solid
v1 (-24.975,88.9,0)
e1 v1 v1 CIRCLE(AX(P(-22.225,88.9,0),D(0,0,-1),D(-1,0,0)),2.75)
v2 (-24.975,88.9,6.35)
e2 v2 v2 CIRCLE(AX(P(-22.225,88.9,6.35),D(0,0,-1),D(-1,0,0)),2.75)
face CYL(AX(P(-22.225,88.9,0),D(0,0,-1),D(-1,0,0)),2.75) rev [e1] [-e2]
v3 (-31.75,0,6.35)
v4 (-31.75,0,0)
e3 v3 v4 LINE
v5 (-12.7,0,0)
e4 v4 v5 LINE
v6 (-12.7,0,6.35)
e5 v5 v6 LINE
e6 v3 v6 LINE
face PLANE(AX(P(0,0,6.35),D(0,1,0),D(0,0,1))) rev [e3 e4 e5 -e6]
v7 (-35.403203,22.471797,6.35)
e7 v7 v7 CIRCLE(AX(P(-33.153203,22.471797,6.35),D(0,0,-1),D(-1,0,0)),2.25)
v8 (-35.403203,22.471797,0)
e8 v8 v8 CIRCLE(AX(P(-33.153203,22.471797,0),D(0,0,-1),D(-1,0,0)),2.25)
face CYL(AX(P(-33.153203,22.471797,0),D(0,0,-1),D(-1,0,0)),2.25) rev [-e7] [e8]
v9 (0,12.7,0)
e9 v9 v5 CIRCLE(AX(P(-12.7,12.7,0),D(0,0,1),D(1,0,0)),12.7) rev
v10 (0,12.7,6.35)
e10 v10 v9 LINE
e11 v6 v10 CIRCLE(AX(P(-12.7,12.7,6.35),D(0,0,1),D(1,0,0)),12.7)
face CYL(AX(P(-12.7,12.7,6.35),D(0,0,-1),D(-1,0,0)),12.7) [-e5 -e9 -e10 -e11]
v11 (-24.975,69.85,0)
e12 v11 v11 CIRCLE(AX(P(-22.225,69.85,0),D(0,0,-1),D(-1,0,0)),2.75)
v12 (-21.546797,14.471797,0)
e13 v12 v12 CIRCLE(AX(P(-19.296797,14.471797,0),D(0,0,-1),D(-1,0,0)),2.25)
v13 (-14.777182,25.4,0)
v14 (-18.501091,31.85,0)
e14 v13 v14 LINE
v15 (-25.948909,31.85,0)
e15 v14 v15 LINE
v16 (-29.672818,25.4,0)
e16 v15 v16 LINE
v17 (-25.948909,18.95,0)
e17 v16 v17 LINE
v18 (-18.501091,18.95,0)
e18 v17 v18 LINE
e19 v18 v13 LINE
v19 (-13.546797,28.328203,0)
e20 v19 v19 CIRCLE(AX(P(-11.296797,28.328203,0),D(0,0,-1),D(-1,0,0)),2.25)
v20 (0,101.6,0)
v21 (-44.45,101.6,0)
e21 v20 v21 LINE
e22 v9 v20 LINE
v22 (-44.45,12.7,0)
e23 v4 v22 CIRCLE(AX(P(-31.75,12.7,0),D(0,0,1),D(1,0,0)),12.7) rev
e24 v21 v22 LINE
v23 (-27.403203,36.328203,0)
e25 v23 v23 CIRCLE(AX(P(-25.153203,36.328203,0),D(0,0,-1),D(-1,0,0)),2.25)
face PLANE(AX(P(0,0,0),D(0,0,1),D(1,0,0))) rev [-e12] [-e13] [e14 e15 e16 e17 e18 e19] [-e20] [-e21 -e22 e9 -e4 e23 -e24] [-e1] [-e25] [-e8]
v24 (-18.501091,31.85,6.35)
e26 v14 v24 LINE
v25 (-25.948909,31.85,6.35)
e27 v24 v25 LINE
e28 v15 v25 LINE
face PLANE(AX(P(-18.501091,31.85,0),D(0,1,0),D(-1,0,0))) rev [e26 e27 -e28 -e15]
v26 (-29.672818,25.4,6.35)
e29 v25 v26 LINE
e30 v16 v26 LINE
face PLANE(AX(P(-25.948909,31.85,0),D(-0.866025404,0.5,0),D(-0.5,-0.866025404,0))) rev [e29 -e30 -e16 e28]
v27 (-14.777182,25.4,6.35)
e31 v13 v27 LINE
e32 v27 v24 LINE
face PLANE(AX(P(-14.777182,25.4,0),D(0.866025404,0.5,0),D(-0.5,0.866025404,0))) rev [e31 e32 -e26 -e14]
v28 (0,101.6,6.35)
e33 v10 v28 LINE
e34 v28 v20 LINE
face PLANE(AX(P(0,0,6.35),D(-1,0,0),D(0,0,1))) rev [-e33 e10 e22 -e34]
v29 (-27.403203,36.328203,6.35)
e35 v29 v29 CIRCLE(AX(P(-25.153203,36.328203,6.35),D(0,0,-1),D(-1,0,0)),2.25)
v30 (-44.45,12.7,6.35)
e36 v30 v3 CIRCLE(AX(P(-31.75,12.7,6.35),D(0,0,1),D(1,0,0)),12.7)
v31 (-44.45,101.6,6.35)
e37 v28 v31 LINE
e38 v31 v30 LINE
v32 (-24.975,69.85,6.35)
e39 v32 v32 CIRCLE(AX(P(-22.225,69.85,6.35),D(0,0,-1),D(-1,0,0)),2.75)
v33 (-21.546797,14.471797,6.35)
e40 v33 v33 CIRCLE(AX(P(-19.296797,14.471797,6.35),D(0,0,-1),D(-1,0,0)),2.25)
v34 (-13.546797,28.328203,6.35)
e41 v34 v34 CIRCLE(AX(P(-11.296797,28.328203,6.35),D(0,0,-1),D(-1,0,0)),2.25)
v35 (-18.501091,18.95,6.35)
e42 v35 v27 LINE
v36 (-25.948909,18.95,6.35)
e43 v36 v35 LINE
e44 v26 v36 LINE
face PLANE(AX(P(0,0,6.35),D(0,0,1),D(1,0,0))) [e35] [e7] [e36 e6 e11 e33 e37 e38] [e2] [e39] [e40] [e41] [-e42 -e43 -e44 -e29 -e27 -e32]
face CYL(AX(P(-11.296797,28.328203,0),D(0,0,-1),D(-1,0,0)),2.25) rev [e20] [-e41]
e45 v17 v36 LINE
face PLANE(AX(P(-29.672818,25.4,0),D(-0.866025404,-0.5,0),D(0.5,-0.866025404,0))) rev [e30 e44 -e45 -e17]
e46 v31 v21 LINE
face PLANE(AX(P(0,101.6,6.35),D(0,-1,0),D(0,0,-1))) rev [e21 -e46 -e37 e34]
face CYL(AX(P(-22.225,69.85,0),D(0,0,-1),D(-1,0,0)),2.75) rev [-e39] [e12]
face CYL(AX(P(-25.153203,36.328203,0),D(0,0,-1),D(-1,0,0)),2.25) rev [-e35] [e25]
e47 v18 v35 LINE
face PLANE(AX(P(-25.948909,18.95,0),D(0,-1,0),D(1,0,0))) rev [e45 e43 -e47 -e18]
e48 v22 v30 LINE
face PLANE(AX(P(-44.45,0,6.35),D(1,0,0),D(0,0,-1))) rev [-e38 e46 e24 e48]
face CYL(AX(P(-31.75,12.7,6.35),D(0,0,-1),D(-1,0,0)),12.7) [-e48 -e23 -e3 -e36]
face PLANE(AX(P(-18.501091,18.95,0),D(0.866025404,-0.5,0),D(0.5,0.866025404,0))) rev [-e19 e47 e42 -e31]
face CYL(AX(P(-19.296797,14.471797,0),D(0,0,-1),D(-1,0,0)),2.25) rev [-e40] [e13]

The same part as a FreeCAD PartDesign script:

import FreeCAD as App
import Part
import Sketcher

V = App.Vector
Q = App.Units.Quantity


def edges_at(feature, points):
    """Names of the edges that pass closest to the given points."""
    edges = feature.Shape.Edges
    near = lambda p: min(range(len(edges)), key=lambda i: edges[i].distToShape(Part.Vertex(*p))[0])
    return sorted({f"Edge{near(p) + 1}" for p in points})

doc = App.newDocument("Part")
params = doc.addObject("Spreadsheet::Sheet", "Params")
for row, (alias, value) in enumerate([
    ("sketch1_height", "4 in"),
    ("sketch1_width", "1.75 in"),
    ("pad1_length", "0.25 in"),
    ("fillet_radius", "0.5 in"),
    ("hole_diameter", "5.5 mm"),
    ("hole2_diameter", "4.5 mm"),
], start=1):
    params.set(f"A{row}", alias)
    params.set(f"B{row}", "=" + value)
    params.setAlias(f"B{row}", alias)

body = doc.addObject("PartDesign::Body", "Body")

# Sketch on XY plane
sketch1 = body.newObject("Sketcher::SketchObject", "Sketch")
sketch1.AttachmentSupport = (doc.getObject("XY_Plane"), [""])
sketch1.MapMode = "FlatFace"
sketch1.addGeometry([
    Part.LineSegment(V(-44.45, 101.6, 0), V(-44.45, 0, 0)),
    Part.LineSegment(V(-44.45, 0, 0), V(0, 0, 0)),
    Part.LineSegment(V(0, 0, 0), V(0, 101.6, 0)),
    Part.LineSegment(V(0, 101.6, 0), V(-44.45, 101.6, 0)),
], False)
sketch1.addConstraint([
    Sketcher.Constraint("Coincident", 0, 2, 1, 1),
    Sketcher.Constraint("Coincident", 1, 2, 2, 1),
    Sketcher.Constraint("Coincident", 2, 2, 3, 1),
    Sketcher.Constraint("Coincident", 3, 2, 0, 1),
    Sketcher.Constraint("Vertical", 0),
    Sketcher.Constraint("Horizontal", 1),
    Sketcher.Constraint("Vertical", 2),
    Sketcher.Constraint("Horizontal", 3),
    Sketcher.Constraint("Coincident", 1, 2, -1, 1),
    Sketcher.Constraint("DistanceY", 0, 2, 0, 1, Q("4 in")),
    Sketcher.Constraint("DistanceX", 1, 1, 1, 2, Q("1.75 in")),
])
sketch1.setExpression("Constraints[9]", "Params.sketch1_height")
sketch1.setExpression("Constraints[10]", "Params.sketch1_width")
pad1 = body.newObject("PartDesign::Pad", "Pad")
pad1.Profile = sketch1
pad1.setExpression("Length", "Params.pad1_length")
doc.recompute()

fillet = body.newObject("PartDesign::Fillet", "Fillet")
fillet.Base = (pad1, edges_at(pad1, [(0, 0, 3.175), (-44.45, 0, 3.175)]))
fillet.setExpression("Radius", "Params.fillet_radius")

# Sketch on XY plane
sketch2 = body.newObject("Sketcher::SketchObject", "Sketch001")
sketch2.AttachmentSupport = (doc.getObject("XY_Plane"), [""])
sketch2.MapMode = "FlatFace"
sketch2.addGeometry([
    Part.Circle(V(-22.225, 88.9, 0), V(0, 0, 1), 2.75),
    Part.Circle(V(-22.225, 69.85, 0), V(0, 0, 1), 2.75),
], False)
sketch2.addConstraint([
    Sketcher.Constraint("Equal", 0, 1),
    Sketcher.Constraint("Vertical", 0, 3, 1, 3),
    Sketcher.Constraint("DistanceY", -1, 1, 0, 3, Q("3.5 in")),
    Sketcher.Constraint("Diameter", 0, Q("5.5 mm")),
    Sketcher.Constraint("DistanceY", -1, 1, 1, 3, Q("2.75 in")),
    Sketcher.Constraint("DistanceX", 0, 3, -1, 1, Q("0.875 in")),
])
doc.recompute()
hole = body.newObject("PartDesign::Hole", "Hole")
hole.Profile = sketch2
hole.ThreadType = "None"
hole.setExpression("Diameter", "Params.hole_diameter")
hole.DepthType = "ThroughAll"
hole.Reversed = True

# Sketch on XY plane
sketch3 = body.newObject("Sketcher::SketchObject", "Sketch002")
sketch3.AttachmentSupport = (doc.getObject("XY_Plane"), [""])
sketch3.MapMode = "FlatFace"
sketch3.AttachmentOffset = App.Placement(V(0, 0, 0.25 * 25.4), App.Rotation())
sketch3.addGeometry([
    Part.LineSegment(V(-14.777182, 25.4, 0), V(-18.501091, 31.85, 0)),  # 0
    Part.LineSegment(V(-18.501091, 31.85, 0), V(-25.948909, 31.85, 0)),  # 1
    Part.LineSegment(V(-25.948909, 31.85, 0), V(-29.672818, 25.4, 0)),  # 2
    Part.LineSegment(V(-29.672818, 25.4, 0), V(-25.948909, 18.95, 0)),  # 3
    Part.LineSegment(V(-25.948909, 18.95, 0), V(-18.501091, 18.95, 0)),  # 4
    Part.LineSegment(V(-18.501091, 18.95, 0), V(-14.777182, 25.4, 0)),  # 5
], False)
sketch3.addConstraint([
    Sketcher.Constraint("Coincident", 0, 2, 1, 1),
    Sketcher.Constraint("Coincident", 1, 2, 2, 1),
    Sketcher.Constraint("Coincident", 2, 2, 3, 1),
    Sketcher.Constraint("Coincident", 3, 2, 4, 1),
    Sketcher.Constraint("Coincident", 4, 2, 5, 1),
    Sketcher.Constraint("Coincident", 5, 2, 0, 1),
    Sketcher.Constraint("Horizontal", 1),
    Sketcher.Constraint("Horizontal", 4),
    Sketcher.Constraint("Parallel", 0, 3),
    Sketcher.Constraint("Parallel", 2, 5),
    Sketcher.Constraint("Horizontal", 2, 2, 5, 2),
    Sketcher.Constraint("Vertical", 1, 2, 3, 2),
    Sketcher.Constraint("Vertical", 0, 2, 4, 2),
    Sketcher.Constraint("DistanceY", -1, 1, 2, 2, Q("1 in")),
    Sketcher.Constraint("Angle", 0, Q("120 deg")),
    Sketcher.Constraint("DistanceX", 1, 2, 1, 1, Q("7.447818 mm")),
    Sketcher.Constraint("DistanceY", -1, 1, 0, 2, Q("31.85 mm")),
    Sketcher.Constraint("DistanceX", 0, 2, -1, 1, Q("18.501091 mm")),
])
pocket1 = body.newObject("PartDesign::Pocket", "Pocket")
pocket1.Profile = sketch3
pocket1.Type = "ThroughAll"

# Sketch on XY plane
sketch4 = body.newObject("Sketcher::SketchObject", "Sketch003")
sketch4.AttachmentSupport = (doc.getObject("XY_Plane"), [""])
sketch4.MapMode = "FlatFace"
sketch4.addGeometry([
    Part.Circle(V(-11.296797, 28.328203, 0), V(0, 0, 1), 2.25),
    Part.Circle(V(-25.153203, 36.328203, 0), V(0, 0, 1), 2.25),
    Part.Circle(V(-33.153203, 22.471797, 0), V(0, 0, 1), 2.25),
    Part.Circle(V(-19.296797, 14.471797, 0), V(0, 0, 1), 2.25),
], False)
sketch4.addConstraint([
    Sketcher.Constraint("Equal", 0, 1),
    Sketcher.Constraint("Equal", 1, 2),
    Sketcher.Constraint("Equal", 2, 3),
    Sketcher.Constraint("Diameter", 0, Q("4.5 mm")),
    Sketcher.Constraint("DistanceY", 0, 3, 1, 3, Q("8 mm")),
    Sketcher.Constraint("DistanceX", 2, 3, 1, 3, Q("8 mm")),
    Sketcher.Constraint("DistanceX", 3, 3, 0, 3, Q("8 mm")),
    Sketcher.Constraint("DistanceY", 3, 3, 2, 3, Q("8 mm")),
    Sketcher.Constraint("DistanceX", 0, 3, -1, 1, Q("11.296797 mm")),
    Sketcher.Constraint("DistanceY", -1, 1, 0, 3, Q("28.328203 mm")),
    Sketcher.Constraint("DistanceX", 1, 3, -1, 1, Q("25.153203 mm")),
    Sketcher.Constraint("DistanceY", -1, 1, 2, 3, Q("22.471797 mm")),
])
doc.recompute()
hole2 = body.newObject("PartDesign::Hole", "Hole001")
hole2.Profile = sketch4
hole2.ThreadType = "None"
hole2.setExpression("Diameter", "Params.hole2_diameter")
hole2.DepthType = "ThroughAll"
hole2.Reversed = True

doc.recompute()
